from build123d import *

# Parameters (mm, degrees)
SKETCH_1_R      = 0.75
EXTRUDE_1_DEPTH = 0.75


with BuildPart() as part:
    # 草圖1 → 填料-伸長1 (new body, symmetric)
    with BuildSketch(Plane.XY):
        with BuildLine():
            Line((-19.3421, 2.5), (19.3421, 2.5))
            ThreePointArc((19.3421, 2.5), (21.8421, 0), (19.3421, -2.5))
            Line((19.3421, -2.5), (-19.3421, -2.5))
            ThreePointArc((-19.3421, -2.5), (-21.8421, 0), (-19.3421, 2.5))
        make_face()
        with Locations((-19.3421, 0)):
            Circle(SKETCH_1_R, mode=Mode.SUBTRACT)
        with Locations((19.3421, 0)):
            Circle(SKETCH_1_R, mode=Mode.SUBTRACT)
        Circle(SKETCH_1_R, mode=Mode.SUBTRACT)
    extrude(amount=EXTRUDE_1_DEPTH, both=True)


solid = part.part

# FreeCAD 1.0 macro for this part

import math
import FreeCAD as App
import Part
import Sketcher

V = App.Vector

doc = App.newDocument("Part")
body = doc.addObject("PartDesign::Body", "Body")

# Sketch on XY plane
sketch1 = doc.addObject("Sketcher::SketchObject", "Sketch")
body.addObject(sketch1)
sketch1.AttachmentSupport = (doc.XY_Plane, [""])
sketch1.MapMode = "FlatFace"
sketch1.addGeometry(Part.LineSegment(V(19.3, 2.5, 0), V(-19.3, 2.5, 0)), False)
sketch1.addGeometry(Part.ArcOfCircle(Part.Circle(V(-19.3, 0, 0), V(0, 0, 1), 2.5), math.radians(90), math.radians(270)), False)
sketch1.addGeometry(Part.LineSegment(V(-19.3, -2.5, 0), V(19.3, -2.5, 0)), False)
sketch1.addGeometry(Part.ArcOfCircle(Part.Circle(V(19.3, 0, 0), V(0, 0, 1), 2.5), math.radians(-90), math.radians(90)), False)
sketch1.addGeometry(Part.Circle(V(19.3, 0, 0), V(0, 0, 1), 0.8), False)
sketch1.addGeometry(Part.Circle(V(0, 0, 0), V(0, 0, 1), 0.8), False)
sketch1.addGeometry(Part.Circle(V(-19.3, 0, 0), V(0, 0, 1), 0.8), False)
sketch1.addConstraint(Sketcher.Constraint("Tangent", 0, 2, 1, 1))
sketch1.addConstraint(Sketcher.Constraint("Tangent", 1, 2, 2, 1))
sketch1.addConstraint(Sketcher.Constraint("Tangent", 2, 2, 3, 1))
sketch1.addConstraint(Sketcher.Constraint("Tangent", 3, 2, 0, 1))
sketch1.addConstraint(Sketcher.Constraint("Horizontal", 0))
sketch1.addConstraint(Sketcher.Constraint("Horizontal", 2))
sketch1.addConstraint(Sketcher.Constraint("Coincident", 5, 3, -1, 1))
sketch1.addConstraint(Sketcher.Constraint("Coincident", 4, 3, 3, 3))
sketch1.addConstraint(Sketcher.Constraint("Coincident", 6, 3, 1, 3))
sketch1.addConstraint(Sketcher.Constraint("Equal", 4, 5))
sketch1.addConstraint(Sketcher.Constraint("Equal", 5, 6))
sketch1.addConstraint(Sketcher.Constraint("Symmetric", 1, 3, 3, 3, -1, 1))
sketch1.addConstraint(Sketcher.Constraint("Diameter", 4, 1.5))
sketch1.addConstraint(Sketcher.Constraint("Radius", 1, 2.5))
sketch1.addConstraint(Sketcher.Constraint("DistanceX", 0, 2, 0, 1, 38.6842))
pad1 = doc.addObject("PartDesign::Pad", "Pad")
body.addObject(pad1)
pad1.Profile = sketch1
pad1.Length = 1.5
pad1.Midplane = True

doc.recompute()
